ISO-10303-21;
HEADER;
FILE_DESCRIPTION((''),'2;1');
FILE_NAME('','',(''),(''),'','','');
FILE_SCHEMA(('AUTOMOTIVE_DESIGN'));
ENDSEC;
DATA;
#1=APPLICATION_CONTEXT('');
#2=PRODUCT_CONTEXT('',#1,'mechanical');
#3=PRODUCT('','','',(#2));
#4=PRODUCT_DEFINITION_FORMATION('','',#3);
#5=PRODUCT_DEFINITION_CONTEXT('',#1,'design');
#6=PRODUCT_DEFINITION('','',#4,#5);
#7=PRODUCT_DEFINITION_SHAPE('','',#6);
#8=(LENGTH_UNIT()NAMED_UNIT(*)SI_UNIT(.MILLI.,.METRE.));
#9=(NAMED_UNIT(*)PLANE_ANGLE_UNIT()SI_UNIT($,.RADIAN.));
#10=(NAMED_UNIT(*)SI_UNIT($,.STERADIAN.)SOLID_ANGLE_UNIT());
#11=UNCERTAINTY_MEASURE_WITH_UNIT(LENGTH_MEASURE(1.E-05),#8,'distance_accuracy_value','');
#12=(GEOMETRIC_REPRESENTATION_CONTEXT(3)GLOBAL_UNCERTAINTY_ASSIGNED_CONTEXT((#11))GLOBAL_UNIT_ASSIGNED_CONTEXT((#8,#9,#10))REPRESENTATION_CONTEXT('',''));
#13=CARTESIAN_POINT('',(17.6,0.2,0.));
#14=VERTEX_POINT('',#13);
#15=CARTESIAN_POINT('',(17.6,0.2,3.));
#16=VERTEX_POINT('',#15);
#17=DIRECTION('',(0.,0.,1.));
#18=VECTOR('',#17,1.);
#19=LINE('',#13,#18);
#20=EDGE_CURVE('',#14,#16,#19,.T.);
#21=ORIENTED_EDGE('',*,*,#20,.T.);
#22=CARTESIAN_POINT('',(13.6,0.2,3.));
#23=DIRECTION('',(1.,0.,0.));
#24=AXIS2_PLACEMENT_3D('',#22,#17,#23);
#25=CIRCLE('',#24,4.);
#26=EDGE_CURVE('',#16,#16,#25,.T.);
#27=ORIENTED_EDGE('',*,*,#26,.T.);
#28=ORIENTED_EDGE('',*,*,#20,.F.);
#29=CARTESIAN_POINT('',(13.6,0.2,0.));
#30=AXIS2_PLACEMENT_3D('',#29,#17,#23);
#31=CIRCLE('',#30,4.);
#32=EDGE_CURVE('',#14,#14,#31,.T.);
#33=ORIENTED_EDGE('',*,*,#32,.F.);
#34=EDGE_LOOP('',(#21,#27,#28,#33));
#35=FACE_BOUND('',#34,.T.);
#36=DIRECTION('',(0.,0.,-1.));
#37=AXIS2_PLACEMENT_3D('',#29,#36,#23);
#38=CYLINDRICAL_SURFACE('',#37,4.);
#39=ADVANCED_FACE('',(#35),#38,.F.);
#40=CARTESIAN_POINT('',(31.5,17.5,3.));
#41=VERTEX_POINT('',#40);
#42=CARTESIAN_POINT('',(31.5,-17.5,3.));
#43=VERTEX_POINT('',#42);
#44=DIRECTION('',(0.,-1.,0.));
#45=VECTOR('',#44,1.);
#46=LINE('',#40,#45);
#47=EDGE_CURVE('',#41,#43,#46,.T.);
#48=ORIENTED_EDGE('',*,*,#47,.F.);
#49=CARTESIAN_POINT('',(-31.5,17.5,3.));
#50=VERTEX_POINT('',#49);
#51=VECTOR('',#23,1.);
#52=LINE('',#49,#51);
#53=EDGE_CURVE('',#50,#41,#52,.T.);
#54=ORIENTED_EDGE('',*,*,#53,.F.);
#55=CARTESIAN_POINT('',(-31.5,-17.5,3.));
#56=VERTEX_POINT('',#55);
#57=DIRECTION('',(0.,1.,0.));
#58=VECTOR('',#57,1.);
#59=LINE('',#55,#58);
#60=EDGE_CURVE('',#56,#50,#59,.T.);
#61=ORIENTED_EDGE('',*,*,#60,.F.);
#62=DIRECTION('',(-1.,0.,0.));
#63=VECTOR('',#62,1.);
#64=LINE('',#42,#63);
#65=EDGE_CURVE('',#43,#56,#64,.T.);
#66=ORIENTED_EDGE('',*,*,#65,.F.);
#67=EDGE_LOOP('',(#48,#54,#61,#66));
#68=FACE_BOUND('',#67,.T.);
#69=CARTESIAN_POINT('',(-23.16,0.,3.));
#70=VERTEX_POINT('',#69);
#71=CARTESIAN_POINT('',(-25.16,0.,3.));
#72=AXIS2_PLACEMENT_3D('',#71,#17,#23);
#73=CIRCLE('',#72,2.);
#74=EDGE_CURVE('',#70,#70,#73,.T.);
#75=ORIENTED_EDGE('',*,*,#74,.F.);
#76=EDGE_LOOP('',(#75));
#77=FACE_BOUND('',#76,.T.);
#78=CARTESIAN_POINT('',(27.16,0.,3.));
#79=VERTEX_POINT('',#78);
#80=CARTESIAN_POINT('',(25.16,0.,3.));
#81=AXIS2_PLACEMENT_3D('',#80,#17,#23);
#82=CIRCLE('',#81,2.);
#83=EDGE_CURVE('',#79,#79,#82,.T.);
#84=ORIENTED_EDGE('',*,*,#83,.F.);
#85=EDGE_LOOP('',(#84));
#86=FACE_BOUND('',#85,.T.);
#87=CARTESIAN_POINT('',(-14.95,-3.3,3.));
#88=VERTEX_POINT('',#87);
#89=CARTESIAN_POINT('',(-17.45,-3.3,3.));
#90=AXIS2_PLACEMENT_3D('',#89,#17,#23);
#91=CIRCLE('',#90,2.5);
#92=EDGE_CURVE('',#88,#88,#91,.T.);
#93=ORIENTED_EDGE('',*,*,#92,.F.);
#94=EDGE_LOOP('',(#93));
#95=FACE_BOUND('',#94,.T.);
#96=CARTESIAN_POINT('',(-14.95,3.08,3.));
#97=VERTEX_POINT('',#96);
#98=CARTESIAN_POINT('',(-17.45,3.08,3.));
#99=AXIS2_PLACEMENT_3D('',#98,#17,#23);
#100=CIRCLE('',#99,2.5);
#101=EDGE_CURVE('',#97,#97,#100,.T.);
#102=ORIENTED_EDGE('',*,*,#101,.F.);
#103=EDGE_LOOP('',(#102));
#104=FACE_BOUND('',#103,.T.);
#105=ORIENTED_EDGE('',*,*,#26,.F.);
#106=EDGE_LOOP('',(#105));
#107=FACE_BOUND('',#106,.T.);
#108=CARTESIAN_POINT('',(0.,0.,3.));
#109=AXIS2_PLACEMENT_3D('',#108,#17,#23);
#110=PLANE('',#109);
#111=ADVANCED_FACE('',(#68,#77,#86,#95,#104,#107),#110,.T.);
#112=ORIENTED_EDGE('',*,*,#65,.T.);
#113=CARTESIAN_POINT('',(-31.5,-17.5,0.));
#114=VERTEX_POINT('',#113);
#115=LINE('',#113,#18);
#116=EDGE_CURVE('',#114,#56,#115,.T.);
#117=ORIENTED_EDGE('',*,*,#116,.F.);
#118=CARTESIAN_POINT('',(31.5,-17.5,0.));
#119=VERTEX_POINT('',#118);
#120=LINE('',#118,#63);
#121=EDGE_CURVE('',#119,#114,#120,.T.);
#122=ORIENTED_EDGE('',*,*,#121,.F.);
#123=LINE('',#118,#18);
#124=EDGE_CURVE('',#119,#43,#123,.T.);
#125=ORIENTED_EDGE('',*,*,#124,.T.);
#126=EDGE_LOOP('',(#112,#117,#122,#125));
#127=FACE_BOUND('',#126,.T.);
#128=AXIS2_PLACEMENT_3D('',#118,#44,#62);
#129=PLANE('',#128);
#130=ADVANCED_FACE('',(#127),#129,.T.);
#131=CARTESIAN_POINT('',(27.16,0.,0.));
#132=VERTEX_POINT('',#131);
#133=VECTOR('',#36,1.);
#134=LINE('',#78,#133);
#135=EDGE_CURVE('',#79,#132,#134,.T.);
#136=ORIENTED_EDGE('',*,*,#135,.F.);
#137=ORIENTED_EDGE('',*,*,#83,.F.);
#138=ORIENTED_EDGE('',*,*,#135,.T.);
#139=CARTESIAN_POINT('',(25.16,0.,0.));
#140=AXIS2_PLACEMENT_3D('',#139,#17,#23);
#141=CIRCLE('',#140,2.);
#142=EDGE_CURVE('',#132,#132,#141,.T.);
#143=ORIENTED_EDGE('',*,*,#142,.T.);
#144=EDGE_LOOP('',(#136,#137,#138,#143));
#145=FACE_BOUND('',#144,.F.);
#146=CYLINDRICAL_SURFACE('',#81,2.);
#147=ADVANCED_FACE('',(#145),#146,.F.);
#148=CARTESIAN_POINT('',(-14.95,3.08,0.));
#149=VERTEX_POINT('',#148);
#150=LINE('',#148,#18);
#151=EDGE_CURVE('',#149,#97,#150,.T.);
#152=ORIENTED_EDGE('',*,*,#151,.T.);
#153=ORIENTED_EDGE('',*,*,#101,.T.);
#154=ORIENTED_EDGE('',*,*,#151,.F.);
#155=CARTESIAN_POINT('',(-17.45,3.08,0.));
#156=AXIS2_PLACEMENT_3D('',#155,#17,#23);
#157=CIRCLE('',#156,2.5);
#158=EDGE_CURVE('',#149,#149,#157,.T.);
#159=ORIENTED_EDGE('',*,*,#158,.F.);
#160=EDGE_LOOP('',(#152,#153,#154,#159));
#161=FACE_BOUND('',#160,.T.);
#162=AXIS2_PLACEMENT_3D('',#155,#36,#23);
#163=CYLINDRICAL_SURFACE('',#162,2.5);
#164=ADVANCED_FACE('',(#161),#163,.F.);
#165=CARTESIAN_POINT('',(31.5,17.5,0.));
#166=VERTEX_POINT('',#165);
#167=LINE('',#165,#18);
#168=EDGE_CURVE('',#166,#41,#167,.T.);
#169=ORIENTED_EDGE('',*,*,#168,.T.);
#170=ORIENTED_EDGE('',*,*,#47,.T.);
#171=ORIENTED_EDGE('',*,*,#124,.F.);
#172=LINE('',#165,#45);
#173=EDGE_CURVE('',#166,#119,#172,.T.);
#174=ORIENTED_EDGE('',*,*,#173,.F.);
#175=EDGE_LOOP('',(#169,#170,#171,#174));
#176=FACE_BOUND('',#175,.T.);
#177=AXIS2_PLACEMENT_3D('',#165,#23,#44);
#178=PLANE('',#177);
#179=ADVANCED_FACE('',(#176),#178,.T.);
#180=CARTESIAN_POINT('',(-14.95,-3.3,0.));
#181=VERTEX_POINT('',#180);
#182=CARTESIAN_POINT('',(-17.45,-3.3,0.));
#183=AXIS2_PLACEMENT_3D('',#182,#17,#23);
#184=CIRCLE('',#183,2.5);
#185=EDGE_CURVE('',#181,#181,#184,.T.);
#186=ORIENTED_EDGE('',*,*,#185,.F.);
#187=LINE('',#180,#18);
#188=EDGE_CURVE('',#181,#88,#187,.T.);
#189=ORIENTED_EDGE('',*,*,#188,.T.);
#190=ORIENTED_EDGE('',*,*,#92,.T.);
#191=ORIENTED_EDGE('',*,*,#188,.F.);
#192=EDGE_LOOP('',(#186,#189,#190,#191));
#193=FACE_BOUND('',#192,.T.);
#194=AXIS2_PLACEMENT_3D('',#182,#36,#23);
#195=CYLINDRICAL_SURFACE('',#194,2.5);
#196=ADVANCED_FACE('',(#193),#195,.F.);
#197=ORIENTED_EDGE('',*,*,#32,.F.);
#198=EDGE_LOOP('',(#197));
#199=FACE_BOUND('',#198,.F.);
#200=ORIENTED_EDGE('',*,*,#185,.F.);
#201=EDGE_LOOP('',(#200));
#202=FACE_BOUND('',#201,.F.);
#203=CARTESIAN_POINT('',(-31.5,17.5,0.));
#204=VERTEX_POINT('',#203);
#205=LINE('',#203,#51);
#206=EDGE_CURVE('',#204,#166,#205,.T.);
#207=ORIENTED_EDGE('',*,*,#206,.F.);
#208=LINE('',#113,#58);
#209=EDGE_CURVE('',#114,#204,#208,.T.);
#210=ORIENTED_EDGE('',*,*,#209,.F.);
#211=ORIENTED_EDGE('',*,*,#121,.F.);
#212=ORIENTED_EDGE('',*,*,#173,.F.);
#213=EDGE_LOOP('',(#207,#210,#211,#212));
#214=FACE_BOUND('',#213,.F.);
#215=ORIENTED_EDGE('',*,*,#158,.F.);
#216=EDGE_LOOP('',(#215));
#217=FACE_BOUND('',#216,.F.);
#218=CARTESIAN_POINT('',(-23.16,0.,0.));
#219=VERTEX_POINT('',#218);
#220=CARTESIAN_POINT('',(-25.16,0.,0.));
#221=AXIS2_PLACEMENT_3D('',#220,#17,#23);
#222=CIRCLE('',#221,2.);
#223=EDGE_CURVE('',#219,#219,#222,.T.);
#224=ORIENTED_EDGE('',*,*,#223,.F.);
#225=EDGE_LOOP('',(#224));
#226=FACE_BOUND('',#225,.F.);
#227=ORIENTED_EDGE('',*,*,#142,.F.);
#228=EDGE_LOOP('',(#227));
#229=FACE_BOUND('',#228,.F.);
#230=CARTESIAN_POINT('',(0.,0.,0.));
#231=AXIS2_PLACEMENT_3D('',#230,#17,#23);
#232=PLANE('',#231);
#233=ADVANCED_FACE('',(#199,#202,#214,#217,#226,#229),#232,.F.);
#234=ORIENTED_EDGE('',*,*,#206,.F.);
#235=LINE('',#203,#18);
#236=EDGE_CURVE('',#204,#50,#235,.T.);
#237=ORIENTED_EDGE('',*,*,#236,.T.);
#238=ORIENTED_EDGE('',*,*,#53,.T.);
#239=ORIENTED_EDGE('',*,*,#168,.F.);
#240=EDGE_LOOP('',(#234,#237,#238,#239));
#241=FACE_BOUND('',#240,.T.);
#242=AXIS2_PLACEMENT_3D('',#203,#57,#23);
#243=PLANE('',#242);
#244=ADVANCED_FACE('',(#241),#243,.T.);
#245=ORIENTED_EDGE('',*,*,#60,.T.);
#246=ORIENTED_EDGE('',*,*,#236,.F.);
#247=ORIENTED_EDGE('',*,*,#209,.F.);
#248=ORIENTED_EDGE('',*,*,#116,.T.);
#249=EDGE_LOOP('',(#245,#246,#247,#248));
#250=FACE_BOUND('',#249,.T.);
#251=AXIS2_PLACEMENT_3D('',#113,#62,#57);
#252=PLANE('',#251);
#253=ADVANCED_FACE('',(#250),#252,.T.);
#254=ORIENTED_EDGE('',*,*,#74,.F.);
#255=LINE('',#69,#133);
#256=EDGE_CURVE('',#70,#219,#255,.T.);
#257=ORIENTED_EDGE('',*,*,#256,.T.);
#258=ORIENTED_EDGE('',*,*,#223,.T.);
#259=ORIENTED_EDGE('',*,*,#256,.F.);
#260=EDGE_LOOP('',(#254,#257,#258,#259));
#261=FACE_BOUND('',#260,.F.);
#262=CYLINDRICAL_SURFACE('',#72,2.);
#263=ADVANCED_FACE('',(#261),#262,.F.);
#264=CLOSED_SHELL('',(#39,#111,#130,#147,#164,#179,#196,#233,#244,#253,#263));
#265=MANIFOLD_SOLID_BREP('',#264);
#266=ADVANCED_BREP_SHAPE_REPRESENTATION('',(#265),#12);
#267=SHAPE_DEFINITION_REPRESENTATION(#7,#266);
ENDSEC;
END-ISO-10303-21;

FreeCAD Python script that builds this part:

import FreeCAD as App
import Part
import Sketcher

V = App.Vector
Q = App.Units.Quantity

doc = App.newDocument("Part")
body = doc.addObject("PartDesign::Body", "Body")

sketch1 = body.newObject("Sketcher::SketchObject", "Sketch")
sketch1.AttachmentSupport = (doc.getObject("XY_Plane"), [""])
sketch1.MapMode = "FlatFace"
sketch1.addGeometry(Part.LineSegment(V(31.5, 17.5, 0), V(-31.5, 17.5, 0)), False)
sketch1.addGeometry(Part.LineSegment(V(-31.5, 17.5, 0), V(-31.5, -17.5, 0)), False)
sketch1.addGeometry(Part.LineSegment(V(-31.5, -17.5, 0), V(31.5, -17.5, 0)), False)
sketch1.addGeometry(Part.LineSegment(V(31.5, -17.5, 0), V(31.5, 17.5, 0)), False)
sketch1.addGeometry(Part.Circle(V(-17.4, -3.3, 0), V(0, 0, 1), 2.5), False)
sketch1.addGeometry(Part.Circle(V(-17.4, 3.1, 0), V(0, 0, 1), 2.5), False)
sketch1.addGeometry(Part.Circle(V(13.6, 0.2, 0), V(0, 0, 1), 4), False)
sketch1.addConstraint(Sketcher.Constraint("Coincident", 0, 2, 1, 1))
sketch1.addConstraint(Sketcher.Constraint("Coincident", 1, 2, 2, 1))
sketch1.addConstraint(Sketcher.Constraint("Coincident", 2, 2, 3, 1))
sketch1.addConstraint(Sketcher.Constraint("Coincident", 3, 2, 0, 1))
sketch1.addConstraint(Sketcher.Constraint("Horizontal", 0))
sketch1.addConstraint(Sketcher.Constraint("Vertical", 1))
sketch1.addConstraint(Sketcher.Constraint("Horizontal", 2))
sketch1.addConstraint(Sketcher.Constraint("Vertical", 3))
sketch1.addConstraint(Sketcher.Constraint("Equal", 4, 5))
sketch1.addConstraint(Sketcher.Constraint("Symmetric", 0, 2, 2, 2, -1, 1))
sketch1.addConstraint(Sketcher.Constraint("Vertical", 4, 3, 5, 3))
sketch1.addConstraint(Sketcher.Constraint("Diameter", 4, Q("5 mm")))
sketch1.addConstraint(Sketcher.Constraint("Diameter", 6, Q("8 mm")))
sketch1.addConstraint(Sketcher.Constraint("DistanceX", 0, 2, 0, 1, Q("63 mm")))
sketch1.addConstraint(Sketcher.Constraint("DistanceY", 1, 2, 1, 1, Q("35 mm")))
sketch1.addConstraint(Sketcher.Constraint("DistanceY", 1, 2, 4, 3, Q("14.2 mm")))
sketch1.addConstraint(Sketcher.Constraint("DistanceY", 1, 2, 6, 3, Q("17.7 mm")))
sketch1.addConstraint(Sketcher.Constraint("DistanceX", 6, 3, 2, 2, Q("17.9 mm")))
sketch1.addConstraint(Sketcher.Constraint("DistanceY", 1, 2, 5, 3, Q("20.58 mm")))
sketch1.addConstraint(Sketcher.Constraint("DistanceX", 4, 3, 2, 2, Q("48.95 mm")))
pad1 = body.newObject("PartDesign::Pad", "Pad")
pad1.Profile = sketch1
pad1.Length = 3

sketch2 = body.newObject("Sketcher::SketchObject", "Sketch001")
sketch2.AttachmentSupport = (doc.getObject("XY_Plane"), [""])
sketch2.MapMode = "FlatFace"
sketch2.AttachmentOffset = App.Placement(V(0, 0, 3), App.Rotation())
sketch2.addGeometry(Part.Circle(V(25.2, 0, 0), V(0, 0, 1), 2), False)
sketch2.addGeometry(Part.Circle(V(-25.2, 0, 0), V(0, 0, 1), 2), False)
sketch2.addConstraint(Sketcher.Constraint("Equal", 0, 1))
sketch2.addConstraint(Sketcher.Constraint("Symmetric", 0, 3, 1, 3, -1, 1))
sketch2.addConstraint(Sketcher.Constraint("PointOnObject", 0, 3, -1))
sketch2.addConstraint(Sketcher.Constraint("Diameter", 0, Q("4 mm")))
sketch2.addConstraint(Sketcher.Constraint("DistanceX", -1, 1, 0, 3, Q("25.16 mm")))
pocket1 = body.newObject("PartDesign::Pocket", "Pocket")
pocket1.Profile = sketch2
pocket1.Length = 3

doc.recompute()
